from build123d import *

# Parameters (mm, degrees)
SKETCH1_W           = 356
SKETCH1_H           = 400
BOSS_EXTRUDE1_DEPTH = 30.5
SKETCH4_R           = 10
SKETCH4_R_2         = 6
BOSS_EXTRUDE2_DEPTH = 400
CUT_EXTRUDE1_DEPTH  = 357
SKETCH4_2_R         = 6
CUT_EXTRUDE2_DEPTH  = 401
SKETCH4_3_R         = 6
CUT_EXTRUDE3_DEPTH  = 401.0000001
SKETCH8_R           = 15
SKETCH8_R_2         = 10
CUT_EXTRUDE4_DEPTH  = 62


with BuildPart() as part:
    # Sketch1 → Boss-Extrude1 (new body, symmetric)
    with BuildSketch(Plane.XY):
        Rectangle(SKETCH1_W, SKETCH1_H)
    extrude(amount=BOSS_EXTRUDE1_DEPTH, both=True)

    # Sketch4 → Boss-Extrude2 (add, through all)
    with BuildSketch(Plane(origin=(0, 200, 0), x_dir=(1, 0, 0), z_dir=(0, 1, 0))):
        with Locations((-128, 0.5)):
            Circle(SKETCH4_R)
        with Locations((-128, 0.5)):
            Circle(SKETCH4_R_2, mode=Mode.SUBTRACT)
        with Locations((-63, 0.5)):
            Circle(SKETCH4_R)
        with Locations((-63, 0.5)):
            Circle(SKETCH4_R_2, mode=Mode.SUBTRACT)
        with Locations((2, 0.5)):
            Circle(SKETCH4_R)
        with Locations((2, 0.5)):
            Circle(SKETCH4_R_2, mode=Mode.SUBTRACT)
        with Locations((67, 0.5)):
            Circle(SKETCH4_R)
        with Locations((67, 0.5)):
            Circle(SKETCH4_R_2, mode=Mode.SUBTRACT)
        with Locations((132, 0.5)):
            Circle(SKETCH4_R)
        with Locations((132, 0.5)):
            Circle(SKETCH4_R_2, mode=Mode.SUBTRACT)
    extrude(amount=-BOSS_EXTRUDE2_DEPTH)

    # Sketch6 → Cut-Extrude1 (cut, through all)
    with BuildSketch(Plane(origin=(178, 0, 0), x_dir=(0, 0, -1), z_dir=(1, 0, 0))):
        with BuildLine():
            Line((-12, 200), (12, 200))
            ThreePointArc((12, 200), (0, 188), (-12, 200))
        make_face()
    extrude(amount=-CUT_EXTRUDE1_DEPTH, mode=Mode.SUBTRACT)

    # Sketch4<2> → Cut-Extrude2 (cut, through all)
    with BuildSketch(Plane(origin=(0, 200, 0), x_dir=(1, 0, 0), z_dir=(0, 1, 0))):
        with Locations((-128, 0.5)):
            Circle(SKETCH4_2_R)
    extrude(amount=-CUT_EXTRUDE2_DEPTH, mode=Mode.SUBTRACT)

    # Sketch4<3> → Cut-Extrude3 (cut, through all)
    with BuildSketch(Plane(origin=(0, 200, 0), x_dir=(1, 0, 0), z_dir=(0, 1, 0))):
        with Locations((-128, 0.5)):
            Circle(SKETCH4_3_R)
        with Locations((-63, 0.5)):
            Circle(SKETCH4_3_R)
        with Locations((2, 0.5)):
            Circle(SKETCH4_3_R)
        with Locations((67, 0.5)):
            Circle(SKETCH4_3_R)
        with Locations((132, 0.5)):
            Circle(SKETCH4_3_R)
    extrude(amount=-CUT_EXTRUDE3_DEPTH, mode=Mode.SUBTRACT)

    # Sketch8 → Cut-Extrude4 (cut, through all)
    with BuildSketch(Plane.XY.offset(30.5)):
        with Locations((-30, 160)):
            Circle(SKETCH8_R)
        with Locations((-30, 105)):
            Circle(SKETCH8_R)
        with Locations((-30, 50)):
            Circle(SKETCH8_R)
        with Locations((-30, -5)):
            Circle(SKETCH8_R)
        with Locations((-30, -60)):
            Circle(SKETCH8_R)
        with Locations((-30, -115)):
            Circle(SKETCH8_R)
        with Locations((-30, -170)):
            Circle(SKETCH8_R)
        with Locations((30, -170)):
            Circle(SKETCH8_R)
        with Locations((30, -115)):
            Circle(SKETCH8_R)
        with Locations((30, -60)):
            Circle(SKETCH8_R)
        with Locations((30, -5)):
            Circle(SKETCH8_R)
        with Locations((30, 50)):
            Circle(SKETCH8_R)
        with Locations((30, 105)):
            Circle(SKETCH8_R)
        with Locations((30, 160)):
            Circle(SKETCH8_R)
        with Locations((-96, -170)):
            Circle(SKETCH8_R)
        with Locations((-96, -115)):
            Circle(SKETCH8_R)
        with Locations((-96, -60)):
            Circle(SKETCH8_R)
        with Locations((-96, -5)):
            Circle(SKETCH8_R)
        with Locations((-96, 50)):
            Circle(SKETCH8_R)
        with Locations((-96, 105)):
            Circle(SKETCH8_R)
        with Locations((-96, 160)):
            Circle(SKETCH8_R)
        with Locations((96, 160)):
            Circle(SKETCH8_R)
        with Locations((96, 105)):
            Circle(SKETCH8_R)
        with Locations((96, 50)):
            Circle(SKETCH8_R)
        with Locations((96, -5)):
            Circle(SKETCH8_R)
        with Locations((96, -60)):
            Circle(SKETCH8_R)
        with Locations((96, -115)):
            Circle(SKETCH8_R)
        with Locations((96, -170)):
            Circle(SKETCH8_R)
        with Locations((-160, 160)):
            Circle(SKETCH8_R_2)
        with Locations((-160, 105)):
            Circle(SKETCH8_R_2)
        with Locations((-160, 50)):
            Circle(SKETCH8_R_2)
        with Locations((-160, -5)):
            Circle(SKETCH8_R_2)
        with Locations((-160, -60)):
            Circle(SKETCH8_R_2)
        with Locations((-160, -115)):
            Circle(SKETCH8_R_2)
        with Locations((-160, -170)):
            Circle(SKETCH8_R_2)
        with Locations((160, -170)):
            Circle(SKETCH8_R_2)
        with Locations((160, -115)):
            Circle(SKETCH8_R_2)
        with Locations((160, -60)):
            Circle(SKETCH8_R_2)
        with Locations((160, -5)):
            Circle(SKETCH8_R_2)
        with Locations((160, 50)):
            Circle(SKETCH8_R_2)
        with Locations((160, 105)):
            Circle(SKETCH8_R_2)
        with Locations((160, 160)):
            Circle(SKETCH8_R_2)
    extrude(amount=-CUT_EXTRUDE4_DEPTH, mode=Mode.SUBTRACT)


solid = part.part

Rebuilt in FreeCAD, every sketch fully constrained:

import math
import FreeCAD as App
import Part
import Sketcher


def add_polygon(sketch, points):
    """Adds a closed chain of lines whose ends are joined by coincident constraints."""
    first, n = sketch.GeometryCount, len(points)
    for a, b in zip(points, points[1:] + points[:1]):
        sketch.addGeometry(Part.LineSegment(App.Vector(*a, 0), App.Vector(*b, 0)), False)
    for i in range(n):
        sketch.addConstraint(Sketcher.Constraint("Coincident", first + i, 2, first + (i + 1) % n, 1))

doc = App.newDocument("Part")
body = doc.addObject("PartDesign::Body", "Body")

# Sketch on XY plane
sketch1 = body.newObject("Sketcher::SketchObject", "Sketch")
sketch1.AttachmentSupport = (doc.getObject("XY_Plane"), [""])
sketch1.MapMode = "FlatFace"
add_polygon(sketch1, [(-178, 200), (-178, -200), (178, -200), (178, 200)])  # lines 0-3
sketch1.addConstraint(Sketcher.Constraint("Vertical", 0))
sketch1.addConstraint(Sketcher.Constraint("Horizontal", 1))
sketch1.addConstraint(Sketcher.Constraint("Vertical", 2))
sketch1.addConstraint(Sketcher.Constraint("Horizontal", 3))
sketch1.addConstraint(Sketcher.Constraint("Symmetric", 0, 2, 2, 2, -1, 1))
sketch1.addConstraint(Sketcher.Constraint("DistanceX", 1, 1, 1, 2, 356.0))
sketch1.addConstraint(Sketcher.Constraint("DistanceY", 0, 2, 0, 1, 400.0))
pad1 = body.newObject("PartDesign::Pad", "Pad")
pad1.Profile = sketch1
pad1.Length = 61
pad1.Midplane = True

# Sketch on XZ plane
sketch2 = body.newObject("Sketcher::SketchObject", "Sketch001")
sketch2.AttachmentSupport = (doc.getObject("XZ_Plane"), [""])
sketch2.MapMode = "FlatFace"
sketch2.AttachmentOffset = App.Placement(App.Vector(0, 0, -200), App.Rotation())
sketch2.addGeometry(Part.Circle(App.Vector(-128, 0, 0), App.Vector(0, 0, 1), 10), False)
sketch2.addGeometry(Part.Circle(App.Vector(-128, 0, 0), App.Vector(0, 0, 1), 6), False)
sketch2.addGeometry(Part.Circle(App.Vector(-63, 0, 0), App.Vector(0, 0, 1), 10), False)
sketch2.addGeometry(Part.Circle(App.Vector(-63, 0, 0), App.Vector(0, 0, 1), 6), False)
sketch2.addGeometry(Part.Circle(App.Vector(2, 0, 0), App.Vector(0, 0, 1), 10), False)
sketch2.addGeometry(Part.Circle(App.Vector(2, 0, 0), App.Vector(0, 0, 1), 6), False)
sketch2.addGeometry(Part.Circle(App.Vector(67, 0, 0), App.Vector(0, 0, 1), 10), False)
sketch2.addGeometry(Part.Circle(App.Vector(67, 0, 0), App.Vector(0, 0, 1), 6), False)
sketch2.addGeometry(Part.Circle(App.Vector(132, 0, 0), App.Vector(0, 0, 1), 10), False)
sketch2.addGeometry(Part.Circle(App.Vector(132, 0, 0), App.Vector(0, 0, 1), 6), False)
sketch2.addConstraint(Sketcher.Constraint("Coincident", 1, 3, 0, 3))
sketch2.addConstraint(Sketcher.Constraint("Coincident", 3, 3, 2, 3))
sketch2.addConstraint(Sketcher.Constraint("Coincident", 5, 3, 4, 3))
sketch2.addConstraint(Sketcher.Constraint("Coincident", 7, 3, 6, 3))
sketch2.addConstraint(Sketcher.Constraint("Coincident", 9, 3, 8, 3))
sketch2.addConstraint(Sketcher.Constraint("Equal", 0, 2))
sketch2.addConstraint(Sketcher.Constraint("Equal", 1, 3))
sketch2.addConstraint(Sketcher.Constraint("Equal", 2, 4))
sketch2.addConstraint(Sketcher.Constraint("Equal", 3, 5))
sketch2.addConstraint(Sketcher.Constraint("Equal", 4, 6))
sketch2.addConstraint(Sketcher.Constraint("Equal", 5, 7))
sketch2.addConstraint(Sketcher.Constraint("Equal", 6, 8))
sketch2.addConstraint(Sketcher.Constraint("Equal", 7, 9))
sketch2.addConstraint(Sketcher.Constraint("Horizontal", 1, 3, 2, 3))
sketch2.addConstraint(Sketcher.Constraint("Horizontal", 3, 3, 4, 3))
sketch2.addConstraint(Sketcher.Constraint("Horizontal", 5, 3, 6, 3))
sketch2.addConstraint(Sketcher.Constraint("Horizontal", 7, 3, 8, 3))
sketch2.addConstraint(Sketcher.Constraint("Diameter", 0, 20.0))
sketch2.addConstraint(Sketcher.Constraint("Diameter", 1, 12.0))
sketch2.addConstraint(Sketcher.Constraint("DistanceX", 0, 3, -1, 1, 128.0))
sketch2.addConstraint(Sketcher.Constraint("DistanceX", 2, 3, -1, 1, 63.0))
sketch2.addConstraint(Sketcher.Constraint("DistanceX", -1, 1, 4, 3, 2.0))
sketch2.addConstraint(Sketcher.Constraint("DistanceX", -1, 1, 6, 3, 67.0))
sketch2.addConstraint(Sketcher.Constraint("DistanceX", -1, 1, 8, 3, 132.0))
sketch2.addConstraint(Sketcher.Constraint("DistanceY", 0, 3, -1, 1, 0.5))
pad2 = body.newObject("PartDesign::Pad", "Pad001")
pad2.Profile = sketch2
pad2.Type = "UpToLast"

# Sketch on YZ plane
sketch3 = body.newObject("Sketcher::SketchObject", "Sketch002")
sketch3.AttachmentSupport = (doc.getObject("YZ_Plane"), [""])
sketch3.MapMode = "FlatFace"
sketch3.AttachmentOffset = App.Placement(App.Vector(0, 0, 178), App.Rotation())
sketch3.addGeometry(Part.LineSegment(App.Vector(200, -12, 0), App.Vector(200, 12, 0)), False)
sketch3.addGeometry(Part.ArcOfCircle(Part.Circle(App.Vector(200, 0, 0), App.Vector(0, 0, 1), 12), math.radians(90), math.radians(270)), False)
sketch3.addConstraint(Sketcher.Constraint("Coincident", 0, 1, 1, 2))
sketch3.addConstraint(Sketcher.Constraint("Coincident", 1, 1, 0, 2))
sketch3.addConstraint(Sketcher.Constraint("Vertical", 0))
sketch3.addConstraint(Sketcher.Constraint("PointOnObject", 1, 3, -1))
sketch3.addConstraint(Sketcher.Constraint("Vertical", 1, 3, 0, 1))
sketch3.addConstraint(Sketcher.Constraint("Radius", 1, 12.0))
sketch3.addConstraint(Sketcher.Constraint("DistanceX", -1, 1, 1, 3, 200.0))
pocket1 = body.newObject("PartDesign::Pocket", "Pocket")
pocket1.Profile = sketch3
pocket1.Type = "ThroughAll"

# Sketch on XZ plane
sketch4 = body.newObject("Sketcher::SketchObject", "Sketch003")
sketch4.AttachmentSupport = (doc.getObject("XZ_Plane"), [""])
sketch4.MapMode = "FlatFace"
sketch4.AttachmentOffset = App.Placement(App.Vector(0, 0, -200), App.Rotation())
sketch4.addGeometry(Part.Circle(App.Vector(-128, 0, 0), App.Vector(0, 0, 1), 6), False)
sketch4.addConstraint(Sketcher.Constraint("Diameter", 0, 12.0))
sketch4.addConstraint(Sketcher.Constraint("DistanceX", 0, 3, -1, 1, 128.0))
sketch4.addConstraint(Sketcher.Constraint("DistanceY", 0, 3, -1, 1, 0.5))
pocket2 = body.newObject("PartDesign::Pocket", "Pocket001")
pocket2.Profile = sketch4
pocket2.Type = "ThroughAll"
pocket2.Reversed = True

# Sketch on XZ plane
sketch5 = body.newObject("Sketcher::SketchObject", "Sketch004")
sketch5.AttachmentSupport = (doc.getObject("XZ_Plane"), [""])
sketch5.MapMode = "FlatFace"
sketch5.AttachmentOffset = App.Placement(App.Vector(0, 0, -200), App.Rotation())
sketch5.addGeometry(Part.Circle(App.Vector(-128, 0, 0), App.Vector(0, 0, 1), 6), False)
sketch5.addGeometry(Part.Circle(App.Vector(-63, 0, 0), App.Vector(0, 0, 1), 6), False)
sketch5.addGeometry(Part.Circle(App.Vector(2, 0, 0), App.Vector(0, 0, 1), 6), False)
sketch5.addGeometry(Part.Circle(App.Vector(67, 0, 0), App.Vector(0, 0, 1), 6), False)
sketch5.addGeometry(Part.Circle(App.Vector(132, 0, 0), App.Vector(0, 0, 1), 6), False)
sketch5.addConstraint(Sketcher.Constraint("Equal", 0, 1))
sketch5.addConstraint(Sketcher.Constraint("Equal", 1, 2))
sketch5.addConstraint(Sketcher.Constraint("Equal", 2, 3))
sketch5.addConstraint(Sketcher.Constraint("Equal", 3, 4))
sketch5.addConstraint(Sketcher.Constraint("Horizontal", 0, 3, 1, 3))
sketch5.addConstraint(Sketcher.Constraint("Horizontal", 1, 3, 2, 3))
sketch5.addConstraint(Sketcher.Constraint("Horizontal", 2, 3, 3, 3))
sketch5.addConstraint(Sketcher.Constraint("Horizontal", 3, 3, 4, 3))
sketch5.addConstraint(Sketcher.Constraint("Diameter", 0, 12.0))
sketch5.addConstraint(Sketcher.Constraint("DistanceX", 0, 3, -1, 1, 128.0))
sketch5.addConstraint(Sketcher.Constraint("DistanceX", 1, 3, -1, 1, 63.0))
sketch5.addConstraint(Sketcher.Constraint("DistanceX", -1, 1, 2, 3, 2.0))
sketch5.addConstraint(Sketcher.Constraint("DistanceX", -1, 1, 3, 3, 67.0))
sketch5.addConstraint(Sketcher.Constraint("DistanceX", -1, 1, 4, 3, 132.0))
sketch5.addConstraint(Sketcher.Constraint("DistanceY", 0, 3, -1, 1, 0.5))
pocket3 = body.newObject("PartDesign::Pocket", "Pocket002")
pocket3.Profile = sketch5
pocket3.Type = "ThroughAll"
pocket3.Reversed = True

# Sketch on XY plane
sketch6 = body.newObject("Sketcher::SketchObject", "Sketch005")
sketch6.AttachmentSupport = (doc.getObject("XY_Plane"), [""])
sketch6.MapMode = "FlatFace"
sketch6.AttachmentOffset = App.Placement(App.Vector(0, 0, 30.5), App.Rotation())
sketch6.addGeometry(Part.Circle(App.Vector(-30, 160, 0), App.Vector(0, 0, 1), 15), False)
sketch6.addGeometry(Part.Circle(App.Vector(-30, 105, 0), App.Vector(0, 0, 1), 15), False)
sketch6.addGeometry(Part.Circle(App.Vector(-30, 50, 0), App.Vector(0, 0, 1), 15), False)
sketch6.addGeometry(Part.Circle(App.Vector(-30, -5, 0), App.Vector(0, 0, 1), 15), False)
sketch6.addGeometry(Part.Circle(App.Vector(-30, -60, 0), App.Vector(0, 0, 1), 15), False)
sketch6.addGeometry(Part.Circle(App.Vector(-30, -115, 0), App.Vector(0, 0, 1), 15), False)
sketch6.addGeometry(Part.Circle(App.Vector(-30, -170, 0), App.Vector(0, 0, 1), 15), False)
sketch6.addGeometry(Part.Circle(App.Vector(30, -170, 0), App.Vector(0, 0, 1), 15), False)
sketch6.addGeometry(Part.Circle(App.Vector(30, -115, 0), App.Vector(0, 0, 1), 15), False)
sketch6.addGeometry(Part.Circle(App.Vector(30, -60, 0), App.Vector(0, 0, 1), 15), False)
sketch6.addGeometry(Part.Circle(App.Vector(30, -5, 0), App.Vector(0, 0, 1), 15), False)
sketch6.addGeometry(Part.Circle(App.Vector(30, 50, 0), App.Vector(0, 0, 1), 15), False)
sketch6.addGeometry(Part.Circle(App.Vector(30, 105, 0), App.Vector(0, 0, 1), 15), False)
sketch6.addGeometry(Part.Circle(App.Vector(30, 160, 0), App.Vector(0, 0, 1), 15), False)
sketch6.addGeometry(Part.Circle(App.Vector(-96, -170, 0), App.Vector(0, 0, 1), 15), False)
sketch6.addGeometry(Part.Circle(App.Vector(-96, -115, 0), App.Vector(0, 0, 1), 15), False)
sketch6.addGeometry(Part.Circle(App.Vector(-96, -60, 0), App.Vector(0, 0, 1), 15), False)
sketch6.addGeometry(Part.Circle(App.Vector(-96, -5, 0), App.Vector(0, 0, 1), 15), False)
sketch6.addGeometry(Part.Circle(App.Vector(-96, 50, 0), App.Vector(0, 0, 1), 15), False)
sketch6.addGeometry(Part.Circle(App.Vector(-96, 105, 0), App.Vector(0, 0, 1), 15), False)
sketch6.addGeometry(Part.Circle(App.Vector(-96, 160, 0), App.Vector(0, 0, 1), 15), False)
sketch6.addGeometry(Part.Circle(App.Vector(96, 160, 0), App.Vector(0, 0, 1), 15), False)
sketch6.addGeometry(Part.Circle(App.Vector(96, 105, 0), App.Vector(0, 0, 1), 15), False)
sketch6.addGeometry(Part.Circle(App.Vector(96, 50, 0), App.Vector(0, 0, 1), 15), False)
sketch6.addGeometry(Part.Circle(App.Vector(96, -5, 0), App.Vector(0, 0, 1), 15), False)
sketch6.addGeometry(Part.Circle(App.Vector(96, -60, 0), App.Vector(0, 0, 1), 15), False)
sketch6.addGeometry(Part.Circle(App.Vector(96, -115, 0), App.Vector(0, 0, 1), 15), False)
sketch6.addGeometry(Part.Circle(App.Vector(96, -170, 0), App.Vector(0, 0, 1), 15), False)
sketch6.addGeometry(Part.Circle(App.Vector(-160, 160, 0), App.Vector(0, 0, 1), 10), False)
sketch6.addGeometry(Part.Circle(App.Vector(-160, 105, 0), App.Vector(0, 0, 1), 10), False)
sketch6.addGeometry(Part.Circle(App.Vector(-160, 50, 0), App.Vector(0, 0, 1), 10), False)
sketch6.addGeometry(Part.Circle(App.Vector(-160, -5, 0), App.Vector(0, 0, 1), 10), False)
sketch6.addGeometry(Part.Circle(App.Vector(-160, -60, 0), App.Vector(0, 0, 1), 10), False)
sketch6.addGeometry(Part.Circle(App.Vector(-160, -115, 0), App.Vector(0, 0, 1), 10), False)
sketch6.addGeometry(Part.Circle(App.Vector(-160, -170, 0), App.Vector(0, 0, 1), 10), False)
sketch6.addGeometry(Part.Circle(App.Vector(160, -170, 0), App.Vector(0, 0, 1), 10), False)
sketch6.addGeometry(Part.Circle(App.Vector(160, -115, 0), App.Vector(0, 0, 1), 10), False)
sketch6.addGeometry(Part.Circle(App.Vector(160, -60, 0), App.Vector(0, 0, 1), 10), False)
sketch6.addGeometry(Part.Circle(App.Vector(160, -5, 0), App.Vector(0, 0, 1), 10), False)
sketch6.addGeometry(Part.Circle(App.Vector(160, 50, 0), App.Vector(0, 0, 1), 10), False)
sketch6.addGeometry(Part.Circle(App.Vector(160, 105, 0), App.Vector(0, 0, 1), 10), False)
sketch6.addGeometry(Part.Circle(App.Vector(160, 160, 0), App.Vector(0, 0, 1), 10), False)
sketch6.addConstraint(Sketcher.Constraint("Equal", 0, 1))
sketch6.addConstraint(Sketcher.Constraint("Equal", 1, 2))
sketch6.addConstraint(Sketcher.Constraint("Equal", 2, 3))
sketch6.addConstraint(Sketcher.Constraint("Equal", 3, 4))
sketch6.addConstraint(Sketcher.Constraint("Equal", 4, 5))
sketch6.addConstraint(Sketcher.Constraint("Equal", 5, 6))
sketch6.addConstraint(Sketcher.Constraint("Equal", 6, 7))
sketch6.addConstraint(Sketcher.Constraint("Equal", 7, 8))
sketch6.addConstraint(Sketcher.Constraint("Equal", 8, 9))
sketch6.addConstraint(Sketcher.Constraint("Equal", 9, 10))
sketch6.addConstraint(Sketcher.Constraint("Equal", 10, 11))
sketch6.addConstraint(Sketcher.Constraint("Equal", 11, 12))
sketch6.addConstraint(Sketcher.Constraint("Equal", 12, 13))
sketch6.addConstraint(Sketcher.Constraint("Equal", 13, 14))
sketch6.addConstraint(Sketcher.Constraint("Equal", 14, 15))
sketch6.addConstraint(Sketcher.Constraint("Equal", 15, 16))
sketch6.addConstraint(Sketcher.Constraint("Equal", 16, 17))
sketch6.addConstraint(Sketcher.Constraint("Equal", 17, 18))
sketch6.addConstraint(Sketcher.Constraint("Equal", 18, 19))
sketch6.addConstraint(Sketcher.Constraint("Equal", 19, 20))
sketch6.addConstraint(Sketcher.Constraint("Equal", 20, 21))
sketch6.addConstraint(Sketcher.Constraint("Equal", 21, 22))
sketch6.addConstraint(Sketcher.Constraint("Equal", 22, 23))
sketch6.addConstraint(Sketcher.Constraint("Equal", 23, 24))
sketch6.addConstraint(Sketcher.Constraint("Equal", 24, 25))
sketch6.addConstraint(Sketcher.Constraint("Equal", 25, 26))
sketch6.addConstraint(Sketcher.Constraint("Equal", 26, 27))
sketch6.addConstraint(Sketcher.Constraint("Equal", 28, 29))
sketch6.addConstraint(Sketcher.Constraint("Equal", 29, 30))
sketch6.addConstraint(Sketcher.Constraint("Equal", 30, 31))
sketch6.addConstraint(Sketcher.Constraint("Equal", 31, 32))
sketch6.addConstraint(Sketcher.Constraint("Equal", 32, 33))
sketch6.addConstraint(Sketcher.Constraint("Equal", 33, 34))
sketch6.addConstraint(Sketcher.Constraint("Equal", 34, 35))
sketch6.addConstraint(Sketcher.Constraint("Equal", 35, 36))
sketch6.addConstraint(Sketcher.Constraint("Equal", 36, 37))
sketch6.addConstraint(Sketcher.Constraint("Equal", 37, 38))
sketch6.addConstraint(Sketcher.Constraint("Equal", 38, 39))
sketch6.addConstraint(Sketcher.Constraint("Equal", 39, 40))
sketch6.addConstraint(Sketcher.Constraint("Equal", 40, 41))
sketch6.addConstraint(Sketcher.Constraint("Symmetric", 6, 3, 7, 3, -2))
sketch6.addConstraint(Sketcher.Constraint("Symmetric", 5, 3, 8, 3, -2))
sketch6.addConstraint(Sketcher.Constraint("Symmetric", 4, 3, 9, 3, -2))
sketch6.addConstraint(Sketcher.Constraint("Symmetric", 3, 3, 10, 3, -2))
sketch6.addConstraint(Sketcher.Constraint("Symmetric", 2, 3, 11, 3, -2))
sketch6.addConstraint(Sketcher.Constraint("Symmetric", 1, 3, 12, 3, -2))
sketch6.addConstraint(Sketcher.Constraint("Symmetric", 0, 3, 13, 3, -2))
sketch6.addConstraint(Sketcher.Constraint("Symmetric", 20, 3, 21, 3, -2))
sketch6.addConstraint(Sketcher.Constraint("Symmetric", 19, 3, 22, 3, -2))
sketch6.addConstraint(Sketcher.Constraint("Symmetric", 18, 3, 23, 3, -2))
sketch6.addConstraint(Sketcher.Constraint("Symmetric", 17, 3, 24, 3, -2))
sketch6.addConstraint(Sketcher.Constraint("Symmetric", 16, 3, 25, 3, -2))
sketch6.addConstraint(Sketcher.Constraint("Symmetric", 15, 3, 26, 3, -2))
sketch6.addConstraint(Sketcher.Constraint("Symmetric", 14, 3, 27, 3, -2))
sketch6.addConstraint(Sketcher.Constraint("Symmetric", 34, 3, 35, 3, -2))
sketch6.addConstraint(Sketcher.Constraint("Symmetric", 33, 3, 36, 3, -2))
sketch6.addConstraint(Sketcher.Constraint("Symmetric", 32, 3, 37, 3, -2))
sketch6.addConstraint(Sketcher.Constraint("Symmetric", 31, 3, 38, 3, -2))
sketch6.addConstraint(Sketcher.Constraint("Symmetric", 30, 3, 39, 3, -2))
sketch6.addConstraint(Sketcher.Constraint("Symmetric", 29, 3, 40, 3, -2))
sketch6.addConstraint(Sketcher.Constraint("Symmetric", 28, 3, 41, 3, -2))
sketch6.addConstraint(Sketcher.Constraint("Horizontal", 7, 3, 14, 3))
sketch6.addConstraint(Sketcher.Constraint("Horizontal", 8, 3, 15, 3))
sketch6.addConstraint(Sketcher.Constraint("Horizontal", 9, 3, 16, 3))
sketch6.addConstraint(Sketcher.Constraint("Horizontal", 10, 3, 17, 3))
sketch6.addConstraint(Sketcher.Constraint("Horizontal", 11, 3, 18, 3))
sketch6.addConstraint(Sketcher.Constraint("Horizontal", 12, 3, 19, 3))
sketch6.addConstraint(Sketcher.Constraint("Horizontal", 13, 3, 20, 3))
sketch6.addConstraint(Sketcher.Constraint("Horizontal", 21, 3, 28, 3))
sketch6.addConstraint(Sketcher.Constraint("Horizontal", 22, 3, 29, 3))
sketch6.addConstraint(Sketcher.Constraint("Horizontal", 23, 3, 30, 3))
sketch6.addConstraint(Sketcher.Constraint("Horizontal", 24, 3, 31, 3))
sketch6.addConstraint(Sketcher.Constraint("Horizontal", 25, 3, 32, 3))
sketch6.addConstraint(Sketcher.Constraint("Horizontal", 26, 3, 33, 3))
sketch6.addConstraint(Sketcher.Constraint("Horizontal", 27, 3, 34, 3))
sketch6.addConstraint(Sketcher.Constraint("Vertical", 0, 3, 1, 3))
sketch6.addConstraint(Sketcher.Constraint("Vertical", 1, 3, 2, 3))
sketch6.addConstraint(Sketcher.Constraint("Vertical", 2, 3, 3, 3))
sketch6.addConstraint(Sketcher.Constraint("Vertical", 3, 3, 4, 3))
sketch6.addConstraint(Sketcher.Constraint("Vertical", 4, 3, 5, 3))
sketch6.addConstraint(Sketcher.Constraint("Vertical", 5, 3, 6, 3))
sketch6.addConstraint(Sketcher.Constraint("Vertical", 14, 3, 15, 3))
sketch6.addConstraint(Sketcher.Constraint("Vertical", 15, 3, 16, 3))
sketch6.addConstraint(Sketcher.Constraint("Vertical", 16, 3, 17, 3))
sketch6.addConstraint(Sketcher.Constraint("Vertical", 17, 3, 18, 3))
sketch6.addConstraint(Sketcher.Constraint("Vertical", 18, 3, 19, 3))
sketch6.addConstraint(Sketcher.Constraint("Vertical", 19, 3, 20, 3))
sketch6.addConstraint(Sketcher.Constraint("Vertical", 28, 3, 29, 3))
sketch6.addConstraint(Sketcher.Constraint("Vertical", 29, 3, 30, 3))
sketch6.addConstraint(Sketcher.Constraint("Vertical", 30, 3, 31, 3))
sketch6.addConstraint(Sketcher.Constraint("Vertical", 31, 3, 32, 3))
sketch6.addConstraint(Sketcher.Constraint("Vertical", 32, 3, 33, 3))
sketch6.addConstraint(Sketcher.Constraint("Vertical", 33, 3, 34, 3))
sketch6.addConstraint(Sketcher.Constraint("Diameter", 0, 30.0))
sketch6.addConstraint(Sketcher.Constraint("Diameter", 28, 20.0))
sketch6.addConstraint(Sketcher.Constraint("DistanceX", 0, 3, -1, 1, 30.0))
sketch6.addConstraint(Sketcher.Constraint("DistanceY", -1, 1, 0, 3, 160.0))
sketch6.addConstraint(Sketcher.Constraint("DistanceY", -1, 1, 1, 3, 105.0))
sketch6.addConstraint(Sketcher.Constraint("DistanceY", -1, 1, 2, 3, 50.0))
sketch6.addConstraint(Sketcher.Constraint("DistanceY", 3, 3, -1, 1, 5.0))
sketch6.addConstraint(Sketcher.Constraint("DistanceY", 4, 3, -1, 1, 60.0))
sketch6.addConstraint(Sketcher.Constraint("DistanceY", 5, 3, -1, 1, 115.0))
sketch6.addConstraint(Sketcher.Constraint("DistanceY", 6, 3, -1, 1, 170.0))
sketch6.addConstraint(Sketcher.Constraint("DistanceX", 14, 3, -1, 1, 96.0))
sketch6.addConstraint(Sketcher.Constraint("DistanceX", 28, 3, -1, 1, 160.0))
pocket4 = body.newObject("PartDesign::Pocket", "Pocket003")
pocket4.Profile = sketch6
pocket4.Type = "ThroughAll"

doc.recompute()
